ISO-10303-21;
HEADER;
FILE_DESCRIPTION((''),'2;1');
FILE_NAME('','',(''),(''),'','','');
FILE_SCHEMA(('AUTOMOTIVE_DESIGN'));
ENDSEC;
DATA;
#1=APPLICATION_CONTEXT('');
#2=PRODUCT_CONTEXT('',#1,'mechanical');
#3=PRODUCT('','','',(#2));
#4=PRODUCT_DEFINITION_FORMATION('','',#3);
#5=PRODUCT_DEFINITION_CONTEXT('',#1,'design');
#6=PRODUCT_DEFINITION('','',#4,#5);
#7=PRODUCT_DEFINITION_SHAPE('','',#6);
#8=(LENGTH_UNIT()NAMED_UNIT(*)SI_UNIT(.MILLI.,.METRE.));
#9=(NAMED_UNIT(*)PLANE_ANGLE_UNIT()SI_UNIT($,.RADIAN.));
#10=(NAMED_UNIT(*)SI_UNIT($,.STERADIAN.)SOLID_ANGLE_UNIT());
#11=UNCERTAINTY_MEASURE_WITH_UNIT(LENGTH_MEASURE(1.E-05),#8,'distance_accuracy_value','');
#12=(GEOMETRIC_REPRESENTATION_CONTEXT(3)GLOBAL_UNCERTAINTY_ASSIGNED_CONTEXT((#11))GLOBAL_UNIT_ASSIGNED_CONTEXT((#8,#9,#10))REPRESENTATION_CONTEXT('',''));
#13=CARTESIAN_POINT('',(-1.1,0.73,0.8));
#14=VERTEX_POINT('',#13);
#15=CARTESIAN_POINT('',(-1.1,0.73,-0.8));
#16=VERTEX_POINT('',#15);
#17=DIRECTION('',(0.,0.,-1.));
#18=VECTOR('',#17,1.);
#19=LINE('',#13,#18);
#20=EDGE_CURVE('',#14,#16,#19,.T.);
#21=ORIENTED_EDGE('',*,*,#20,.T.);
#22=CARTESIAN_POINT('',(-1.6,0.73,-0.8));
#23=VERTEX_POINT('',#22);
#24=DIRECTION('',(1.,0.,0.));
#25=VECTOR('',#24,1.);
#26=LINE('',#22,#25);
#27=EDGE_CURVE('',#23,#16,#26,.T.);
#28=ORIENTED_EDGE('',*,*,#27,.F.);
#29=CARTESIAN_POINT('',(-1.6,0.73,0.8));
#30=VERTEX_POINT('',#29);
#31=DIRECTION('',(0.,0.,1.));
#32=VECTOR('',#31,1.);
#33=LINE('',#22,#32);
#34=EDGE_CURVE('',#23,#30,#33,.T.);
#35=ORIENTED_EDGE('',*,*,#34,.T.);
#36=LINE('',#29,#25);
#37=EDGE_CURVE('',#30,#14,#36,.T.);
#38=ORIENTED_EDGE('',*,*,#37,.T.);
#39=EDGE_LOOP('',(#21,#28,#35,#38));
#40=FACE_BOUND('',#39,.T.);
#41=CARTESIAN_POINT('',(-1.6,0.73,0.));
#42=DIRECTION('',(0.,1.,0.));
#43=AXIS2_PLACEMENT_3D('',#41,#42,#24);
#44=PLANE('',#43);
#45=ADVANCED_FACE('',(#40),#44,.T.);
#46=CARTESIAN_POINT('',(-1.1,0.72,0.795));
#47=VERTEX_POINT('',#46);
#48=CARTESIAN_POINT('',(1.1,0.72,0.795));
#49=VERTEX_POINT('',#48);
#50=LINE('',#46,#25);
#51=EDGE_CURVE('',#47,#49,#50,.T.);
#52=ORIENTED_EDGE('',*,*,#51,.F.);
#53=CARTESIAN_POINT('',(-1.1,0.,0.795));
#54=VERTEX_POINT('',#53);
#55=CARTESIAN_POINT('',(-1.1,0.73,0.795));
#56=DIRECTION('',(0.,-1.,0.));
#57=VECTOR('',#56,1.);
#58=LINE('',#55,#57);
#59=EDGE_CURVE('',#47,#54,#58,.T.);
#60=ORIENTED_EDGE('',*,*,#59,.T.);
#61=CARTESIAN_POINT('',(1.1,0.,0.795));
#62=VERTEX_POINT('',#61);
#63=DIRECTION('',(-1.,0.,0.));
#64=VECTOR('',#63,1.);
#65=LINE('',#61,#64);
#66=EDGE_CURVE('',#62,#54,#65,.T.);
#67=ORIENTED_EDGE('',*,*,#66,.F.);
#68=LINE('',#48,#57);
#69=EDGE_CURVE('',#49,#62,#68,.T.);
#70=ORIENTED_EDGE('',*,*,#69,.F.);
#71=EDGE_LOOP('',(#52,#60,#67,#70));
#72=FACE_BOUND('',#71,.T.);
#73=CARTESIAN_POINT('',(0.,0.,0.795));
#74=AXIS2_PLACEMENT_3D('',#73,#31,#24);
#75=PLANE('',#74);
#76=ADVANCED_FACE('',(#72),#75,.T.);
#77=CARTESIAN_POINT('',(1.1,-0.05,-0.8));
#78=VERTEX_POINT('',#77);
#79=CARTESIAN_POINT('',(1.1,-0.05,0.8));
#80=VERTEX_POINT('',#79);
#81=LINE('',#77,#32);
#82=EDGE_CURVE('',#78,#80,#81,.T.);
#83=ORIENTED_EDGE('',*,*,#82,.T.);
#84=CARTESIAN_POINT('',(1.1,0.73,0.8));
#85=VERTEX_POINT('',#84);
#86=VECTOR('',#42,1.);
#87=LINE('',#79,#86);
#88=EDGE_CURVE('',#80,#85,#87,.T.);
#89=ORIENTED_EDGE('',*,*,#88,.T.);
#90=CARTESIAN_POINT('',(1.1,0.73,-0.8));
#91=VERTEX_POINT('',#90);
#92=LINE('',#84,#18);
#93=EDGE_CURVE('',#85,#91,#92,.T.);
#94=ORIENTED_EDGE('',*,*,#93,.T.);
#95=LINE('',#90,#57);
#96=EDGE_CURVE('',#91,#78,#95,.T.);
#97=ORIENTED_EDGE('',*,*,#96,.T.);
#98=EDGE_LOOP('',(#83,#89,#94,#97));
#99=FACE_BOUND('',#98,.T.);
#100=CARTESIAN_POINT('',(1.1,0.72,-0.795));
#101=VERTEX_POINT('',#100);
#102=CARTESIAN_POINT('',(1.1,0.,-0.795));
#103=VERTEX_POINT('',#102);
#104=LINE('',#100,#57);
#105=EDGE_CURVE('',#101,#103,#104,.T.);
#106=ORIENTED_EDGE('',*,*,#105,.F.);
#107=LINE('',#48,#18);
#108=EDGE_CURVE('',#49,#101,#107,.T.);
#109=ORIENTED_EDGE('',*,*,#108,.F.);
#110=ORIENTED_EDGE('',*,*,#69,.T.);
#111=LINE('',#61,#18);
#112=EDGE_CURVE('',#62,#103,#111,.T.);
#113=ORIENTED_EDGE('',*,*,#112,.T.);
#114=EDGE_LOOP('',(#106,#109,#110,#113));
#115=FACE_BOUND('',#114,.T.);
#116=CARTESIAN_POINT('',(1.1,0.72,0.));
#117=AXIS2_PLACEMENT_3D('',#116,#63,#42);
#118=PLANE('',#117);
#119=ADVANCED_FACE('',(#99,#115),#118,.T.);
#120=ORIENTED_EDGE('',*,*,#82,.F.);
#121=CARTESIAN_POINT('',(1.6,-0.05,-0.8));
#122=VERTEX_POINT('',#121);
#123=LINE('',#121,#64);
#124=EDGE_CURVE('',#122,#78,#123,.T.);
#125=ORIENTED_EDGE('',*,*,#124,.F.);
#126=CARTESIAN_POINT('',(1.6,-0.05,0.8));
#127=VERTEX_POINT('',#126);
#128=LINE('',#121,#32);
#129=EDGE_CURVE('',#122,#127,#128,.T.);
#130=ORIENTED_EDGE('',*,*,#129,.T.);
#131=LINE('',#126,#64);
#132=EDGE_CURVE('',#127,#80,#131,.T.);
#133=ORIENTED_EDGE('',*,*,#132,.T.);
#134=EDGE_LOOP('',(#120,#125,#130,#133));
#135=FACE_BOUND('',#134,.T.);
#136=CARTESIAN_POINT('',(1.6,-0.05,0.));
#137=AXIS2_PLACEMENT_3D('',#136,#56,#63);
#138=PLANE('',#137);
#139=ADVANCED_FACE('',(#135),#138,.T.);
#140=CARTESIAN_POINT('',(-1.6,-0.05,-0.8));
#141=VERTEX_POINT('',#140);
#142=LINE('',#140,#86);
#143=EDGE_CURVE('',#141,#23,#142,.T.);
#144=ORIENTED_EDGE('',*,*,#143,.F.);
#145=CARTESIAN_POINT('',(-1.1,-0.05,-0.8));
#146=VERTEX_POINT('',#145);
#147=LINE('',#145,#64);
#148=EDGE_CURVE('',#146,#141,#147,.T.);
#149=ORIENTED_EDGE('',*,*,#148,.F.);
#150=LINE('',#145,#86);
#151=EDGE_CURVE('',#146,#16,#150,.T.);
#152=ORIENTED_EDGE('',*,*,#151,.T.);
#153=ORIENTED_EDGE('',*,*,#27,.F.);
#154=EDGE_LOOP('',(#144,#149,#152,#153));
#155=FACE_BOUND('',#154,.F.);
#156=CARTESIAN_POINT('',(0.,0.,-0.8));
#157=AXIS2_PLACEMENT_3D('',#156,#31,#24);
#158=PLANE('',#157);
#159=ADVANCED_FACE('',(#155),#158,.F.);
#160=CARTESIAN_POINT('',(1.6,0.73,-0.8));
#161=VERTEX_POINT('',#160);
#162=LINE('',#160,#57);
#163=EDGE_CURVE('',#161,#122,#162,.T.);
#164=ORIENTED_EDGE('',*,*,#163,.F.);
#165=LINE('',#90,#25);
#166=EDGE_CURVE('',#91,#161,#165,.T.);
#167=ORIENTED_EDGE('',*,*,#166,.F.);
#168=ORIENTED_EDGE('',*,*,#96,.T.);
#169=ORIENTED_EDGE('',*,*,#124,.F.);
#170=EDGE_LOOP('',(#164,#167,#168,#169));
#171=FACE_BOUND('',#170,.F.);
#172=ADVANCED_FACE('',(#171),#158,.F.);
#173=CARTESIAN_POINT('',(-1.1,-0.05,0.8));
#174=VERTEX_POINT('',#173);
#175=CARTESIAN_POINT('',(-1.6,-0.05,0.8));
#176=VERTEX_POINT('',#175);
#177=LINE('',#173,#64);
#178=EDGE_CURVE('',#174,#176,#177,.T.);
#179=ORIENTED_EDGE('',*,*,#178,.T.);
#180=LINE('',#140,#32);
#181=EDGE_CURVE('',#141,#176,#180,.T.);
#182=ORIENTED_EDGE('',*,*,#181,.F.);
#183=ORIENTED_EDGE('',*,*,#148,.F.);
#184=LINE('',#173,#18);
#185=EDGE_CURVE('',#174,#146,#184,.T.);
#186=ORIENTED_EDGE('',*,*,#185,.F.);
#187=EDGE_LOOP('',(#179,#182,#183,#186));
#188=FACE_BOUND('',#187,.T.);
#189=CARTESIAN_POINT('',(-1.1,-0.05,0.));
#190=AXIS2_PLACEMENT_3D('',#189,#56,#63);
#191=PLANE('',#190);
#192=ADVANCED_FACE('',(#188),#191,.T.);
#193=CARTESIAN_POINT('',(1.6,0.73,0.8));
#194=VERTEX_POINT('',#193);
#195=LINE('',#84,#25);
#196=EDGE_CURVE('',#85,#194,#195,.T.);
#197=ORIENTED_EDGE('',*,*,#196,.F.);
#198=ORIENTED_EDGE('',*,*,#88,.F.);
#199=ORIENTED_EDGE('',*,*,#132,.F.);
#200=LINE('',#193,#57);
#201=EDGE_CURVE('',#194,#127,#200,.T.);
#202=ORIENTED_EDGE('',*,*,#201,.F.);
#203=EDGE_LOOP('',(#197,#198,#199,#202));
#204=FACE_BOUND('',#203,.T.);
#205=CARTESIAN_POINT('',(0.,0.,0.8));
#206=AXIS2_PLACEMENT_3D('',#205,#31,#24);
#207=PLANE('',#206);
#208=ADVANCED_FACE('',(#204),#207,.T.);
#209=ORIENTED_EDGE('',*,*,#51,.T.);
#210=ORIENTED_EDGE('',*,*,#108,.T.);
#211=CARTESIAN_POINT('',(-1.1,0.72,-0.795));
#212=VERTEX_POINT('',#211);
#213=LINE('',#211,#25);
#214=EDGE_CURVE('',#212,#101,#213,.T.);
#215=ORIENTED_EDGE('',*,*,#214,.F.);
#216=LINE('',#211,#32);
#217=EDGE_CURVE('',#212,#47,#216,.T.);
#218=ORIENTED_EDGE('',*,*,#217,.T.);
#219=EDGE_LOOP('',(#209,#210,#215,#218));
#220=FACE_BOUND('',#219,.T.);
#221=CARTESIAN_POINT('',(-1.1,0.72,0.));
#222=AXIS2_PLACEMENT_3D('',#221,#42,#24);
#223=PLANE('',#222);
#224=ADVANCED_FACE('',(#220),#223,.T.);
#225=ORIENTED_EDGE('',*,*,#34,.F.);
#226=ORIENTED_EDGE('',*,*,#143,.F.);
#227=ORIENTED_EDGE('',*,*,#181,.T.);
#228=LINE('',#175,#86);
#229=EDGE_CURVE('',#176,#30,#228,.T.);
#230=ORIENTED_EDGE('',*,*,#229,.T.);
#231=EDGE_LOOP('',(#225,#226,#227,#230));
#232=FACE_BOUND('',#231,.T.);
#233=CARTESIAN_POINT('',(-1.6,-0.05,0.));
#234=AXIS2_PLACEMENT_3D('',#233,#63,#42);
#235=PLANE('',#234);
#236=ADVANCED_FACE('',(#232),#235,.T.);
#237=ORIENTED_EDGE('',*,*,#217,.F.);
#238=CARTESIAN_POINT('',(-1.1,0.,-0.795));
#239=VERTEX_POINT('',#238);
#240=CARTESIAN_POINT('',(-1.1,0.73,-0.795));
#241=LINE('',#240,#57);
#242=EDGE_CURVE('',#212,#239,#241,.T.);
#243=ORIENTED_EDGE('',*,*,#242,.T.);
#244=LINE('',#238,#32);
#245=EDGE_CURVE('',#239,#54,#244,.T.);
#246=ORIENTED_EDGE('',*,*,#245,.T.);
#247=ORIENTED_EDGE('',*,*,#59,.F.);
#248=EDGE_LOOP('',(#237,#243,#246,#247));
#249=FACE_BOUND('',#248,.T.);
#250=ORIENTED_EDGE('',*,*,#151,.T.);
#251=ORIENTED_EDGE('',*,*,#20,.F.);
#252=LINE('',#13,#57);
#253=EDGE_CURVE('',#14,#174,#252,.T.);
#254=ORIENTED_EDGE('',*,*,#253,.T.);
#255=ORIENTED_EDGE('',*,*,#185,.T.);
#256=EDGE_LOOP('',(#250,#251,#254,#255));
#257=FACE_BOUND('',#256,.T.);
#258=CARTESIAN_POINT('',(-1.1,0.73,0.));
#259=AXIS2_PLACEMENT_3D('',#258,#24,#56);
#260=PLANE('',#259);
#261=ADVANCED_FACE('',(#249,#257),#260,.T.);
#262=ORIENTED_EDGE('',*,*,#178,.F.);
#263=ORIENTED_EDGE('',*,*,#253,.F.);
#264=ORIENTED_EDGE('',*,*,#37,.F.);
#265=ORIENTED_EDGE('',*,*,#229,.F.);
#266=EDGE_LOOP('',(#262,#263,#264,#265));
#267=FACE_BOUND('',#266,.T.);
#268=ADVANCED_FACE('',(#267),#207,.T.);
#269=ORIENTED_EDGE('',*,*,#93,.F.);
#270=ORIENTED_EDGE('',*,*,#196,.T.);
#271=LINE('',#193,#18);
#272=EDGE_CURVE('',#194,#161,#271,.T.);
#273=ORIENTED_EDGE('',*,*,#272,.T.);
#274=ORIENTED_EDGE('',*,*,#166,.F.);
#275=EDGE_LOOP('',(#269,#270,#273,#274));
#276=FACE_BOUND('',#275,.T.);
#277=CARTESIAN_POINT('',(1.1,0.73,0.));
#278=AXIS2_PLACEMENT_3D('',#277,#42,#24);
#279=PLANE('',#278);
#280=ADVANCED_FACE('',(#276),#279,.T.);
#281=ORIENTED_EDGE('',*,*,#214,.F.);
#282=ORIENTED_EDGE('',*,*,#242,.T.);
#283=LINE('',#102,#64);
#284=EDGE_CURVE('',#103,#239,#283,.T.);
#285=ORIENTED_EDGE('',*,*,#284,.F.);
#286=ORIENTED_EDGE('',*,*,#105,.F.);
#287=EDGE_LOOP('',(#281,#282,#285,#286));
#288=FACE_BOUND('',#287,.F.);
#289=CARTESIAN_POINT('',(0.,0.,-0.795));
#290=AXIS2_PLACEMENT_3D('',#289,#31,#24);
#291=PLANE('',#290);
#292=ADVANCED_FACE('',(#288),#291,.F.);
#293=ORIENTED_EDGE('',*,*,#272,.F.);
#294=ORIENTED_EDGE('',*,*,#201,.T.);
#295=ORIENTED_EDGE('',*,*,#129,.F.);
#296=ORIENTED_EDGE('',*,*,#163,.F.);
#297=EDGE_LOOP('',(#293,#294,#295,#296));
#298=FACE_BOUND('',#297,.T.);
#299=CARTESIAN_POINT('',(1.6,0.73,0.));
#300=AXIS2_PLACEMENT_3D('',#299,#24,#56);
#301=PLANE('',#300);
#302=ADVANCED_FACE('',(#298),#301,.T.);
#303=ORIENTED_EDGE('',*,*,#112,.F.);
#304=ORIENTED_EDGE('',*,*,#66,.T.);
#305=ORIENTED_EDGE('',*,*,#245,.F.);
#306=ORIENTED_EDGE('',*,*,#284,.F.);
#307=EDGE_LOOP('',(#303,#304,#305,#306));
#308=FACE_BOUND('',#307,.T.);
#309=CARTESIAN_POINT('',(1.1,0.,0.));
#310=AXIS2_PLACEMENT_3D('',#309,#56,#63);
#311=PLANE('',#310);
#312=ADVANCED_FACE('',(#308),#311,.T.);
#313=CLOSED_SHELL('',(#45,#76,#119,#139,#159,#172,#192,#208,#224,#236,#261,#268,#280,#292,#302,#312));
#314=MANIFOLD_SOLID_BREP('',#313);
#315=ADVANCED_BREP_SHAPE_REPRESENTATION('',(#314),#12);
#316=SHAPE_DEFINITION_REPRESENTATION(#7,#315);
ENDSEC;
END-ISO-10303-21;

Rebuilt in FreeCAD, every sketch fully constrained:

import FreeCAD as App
import Part
import Sketcher
from FreeCAD import Vector
Q = App.Units.Quantity


def add_polygon(sketch, points):
    """Adds a closed chain of lines whose ends are joined by coincident constraints."""
    first, n = sketch.GeometryCount, len(points)
    for a, b in zip(points, points[1:] + points[:1]):
        sketch.addGeometry(Part.LineSegment(App.Vector(*a, 0), App.Vector(*b, 0)), False)
    for i in range(n):
        sketch.addConstraint(Sketcher.Constraint("Coincident", first + i, 2, first + (i + 1) % n, 1))

doc = App.newDocument("Part")
body = doc.addObject("PartDesign::Body", "Body")
body.AllowCompound = True

# Sketch on XY plane
sketch1 = doc.addObject("Sketcher::SketchObject", "Sketch")
body.addObject(sketch1)
sketch1.AttachmentSupport = (doc.XY_Plane, [""])
sketch1.MapMode = "FlatFace"
add_polygon(sketch1, [(-1.1, 0.7), (-1.6, 0.7), (-1.6, -0.1), (-1.1, -0.1)])  # lines 0-3
add_polygon(sketch1, [(1.1, 0.7), (1.1, -0.1), (1.6, -0.1), (1.6, 0.7)])  # lines 4-7
sketch1.addConstraint([
    Sketcher.Constraint("Horizontal", 0),
    Sketcher.Constraint("Vertical", 1),
    Sketcher.Constraint("Horizontal", 2),
    Sketcher.Constraint("Vertical", 3),
    Sketcher.Constraint("Vertical", 4),
    Sketcher.Constraint("Horizontal", 5),
    Sketcher.Constraint("Vertical", 6),
    Sketcher.Constraint("Horizontal", 7),
    Sketcher.Constraint("Symmetric", 2, 2, 4, 2, -2),
    Sketcher.Constraint("Symmetric", 0, 2, 6, 2, -2),
    Sketcher.Constraint("DistanceX", 0, 2, 0, 1, Q("0.5 mm")),
    Sketcher.Constraint("DistanceY", 1, 2, 1, 1, Q("0.78 mm")),
    Sketcher.Constraint("DistanceX", 1, 2, 5, 2, Q("3.2 mm")),
    Sketcher.Constraint("DistanceY", 1, 2, -1, 1, Q("0.05 mm")),
])
pad1 = doc.addObject("PartDesign::Pad", "Pad")
body.addObject(pad1)
pad1.Profile = sketch1
pad1.Length = 1.6
pad1.Midplane = True

# Sketch on XY plane
sketch2 = doc.addObject("Sketcher::SketchObject", "Sketch001")
body.addObject(sketch2)
sketch2.AttachmentSupport = (doc.XY_Plane, [""])
sketch2.MapMode = "FlatFace"
add_polygon(sketch2, [(1.1, 0.7), (-1.1, 0.7), (-1.1, 0), (1.1, 0)])  # lines 0-3
sketch2.addConstraint([
    Sketcher.Constraint("Horizontal", 0),
    Sketcher.Constraint("Vertical", 1),
    Sketcher.Constraint("Horizontal", 2),
    Sketcher.Constraint("Vertical", 3),
    Sketcher.Constraint("Symmetric", 1, 2, 2, 2, -1, 1),
    Sketcher.Constraint("DistanceX", 0, 2, 0, 1, Q("2.2 mm")),
    Sketcher.Constraint("DistanceY", 1, 2, 1, 1, Q("0.72 mm")),
])
pad2 = doc.addObject("PartDesign::Pad", "Pad001")
body.addObject(pad2)
pad2.Profile = sketch2
pad2.Length = 1.59
pad2.Midplane = True

doc.recompute()
